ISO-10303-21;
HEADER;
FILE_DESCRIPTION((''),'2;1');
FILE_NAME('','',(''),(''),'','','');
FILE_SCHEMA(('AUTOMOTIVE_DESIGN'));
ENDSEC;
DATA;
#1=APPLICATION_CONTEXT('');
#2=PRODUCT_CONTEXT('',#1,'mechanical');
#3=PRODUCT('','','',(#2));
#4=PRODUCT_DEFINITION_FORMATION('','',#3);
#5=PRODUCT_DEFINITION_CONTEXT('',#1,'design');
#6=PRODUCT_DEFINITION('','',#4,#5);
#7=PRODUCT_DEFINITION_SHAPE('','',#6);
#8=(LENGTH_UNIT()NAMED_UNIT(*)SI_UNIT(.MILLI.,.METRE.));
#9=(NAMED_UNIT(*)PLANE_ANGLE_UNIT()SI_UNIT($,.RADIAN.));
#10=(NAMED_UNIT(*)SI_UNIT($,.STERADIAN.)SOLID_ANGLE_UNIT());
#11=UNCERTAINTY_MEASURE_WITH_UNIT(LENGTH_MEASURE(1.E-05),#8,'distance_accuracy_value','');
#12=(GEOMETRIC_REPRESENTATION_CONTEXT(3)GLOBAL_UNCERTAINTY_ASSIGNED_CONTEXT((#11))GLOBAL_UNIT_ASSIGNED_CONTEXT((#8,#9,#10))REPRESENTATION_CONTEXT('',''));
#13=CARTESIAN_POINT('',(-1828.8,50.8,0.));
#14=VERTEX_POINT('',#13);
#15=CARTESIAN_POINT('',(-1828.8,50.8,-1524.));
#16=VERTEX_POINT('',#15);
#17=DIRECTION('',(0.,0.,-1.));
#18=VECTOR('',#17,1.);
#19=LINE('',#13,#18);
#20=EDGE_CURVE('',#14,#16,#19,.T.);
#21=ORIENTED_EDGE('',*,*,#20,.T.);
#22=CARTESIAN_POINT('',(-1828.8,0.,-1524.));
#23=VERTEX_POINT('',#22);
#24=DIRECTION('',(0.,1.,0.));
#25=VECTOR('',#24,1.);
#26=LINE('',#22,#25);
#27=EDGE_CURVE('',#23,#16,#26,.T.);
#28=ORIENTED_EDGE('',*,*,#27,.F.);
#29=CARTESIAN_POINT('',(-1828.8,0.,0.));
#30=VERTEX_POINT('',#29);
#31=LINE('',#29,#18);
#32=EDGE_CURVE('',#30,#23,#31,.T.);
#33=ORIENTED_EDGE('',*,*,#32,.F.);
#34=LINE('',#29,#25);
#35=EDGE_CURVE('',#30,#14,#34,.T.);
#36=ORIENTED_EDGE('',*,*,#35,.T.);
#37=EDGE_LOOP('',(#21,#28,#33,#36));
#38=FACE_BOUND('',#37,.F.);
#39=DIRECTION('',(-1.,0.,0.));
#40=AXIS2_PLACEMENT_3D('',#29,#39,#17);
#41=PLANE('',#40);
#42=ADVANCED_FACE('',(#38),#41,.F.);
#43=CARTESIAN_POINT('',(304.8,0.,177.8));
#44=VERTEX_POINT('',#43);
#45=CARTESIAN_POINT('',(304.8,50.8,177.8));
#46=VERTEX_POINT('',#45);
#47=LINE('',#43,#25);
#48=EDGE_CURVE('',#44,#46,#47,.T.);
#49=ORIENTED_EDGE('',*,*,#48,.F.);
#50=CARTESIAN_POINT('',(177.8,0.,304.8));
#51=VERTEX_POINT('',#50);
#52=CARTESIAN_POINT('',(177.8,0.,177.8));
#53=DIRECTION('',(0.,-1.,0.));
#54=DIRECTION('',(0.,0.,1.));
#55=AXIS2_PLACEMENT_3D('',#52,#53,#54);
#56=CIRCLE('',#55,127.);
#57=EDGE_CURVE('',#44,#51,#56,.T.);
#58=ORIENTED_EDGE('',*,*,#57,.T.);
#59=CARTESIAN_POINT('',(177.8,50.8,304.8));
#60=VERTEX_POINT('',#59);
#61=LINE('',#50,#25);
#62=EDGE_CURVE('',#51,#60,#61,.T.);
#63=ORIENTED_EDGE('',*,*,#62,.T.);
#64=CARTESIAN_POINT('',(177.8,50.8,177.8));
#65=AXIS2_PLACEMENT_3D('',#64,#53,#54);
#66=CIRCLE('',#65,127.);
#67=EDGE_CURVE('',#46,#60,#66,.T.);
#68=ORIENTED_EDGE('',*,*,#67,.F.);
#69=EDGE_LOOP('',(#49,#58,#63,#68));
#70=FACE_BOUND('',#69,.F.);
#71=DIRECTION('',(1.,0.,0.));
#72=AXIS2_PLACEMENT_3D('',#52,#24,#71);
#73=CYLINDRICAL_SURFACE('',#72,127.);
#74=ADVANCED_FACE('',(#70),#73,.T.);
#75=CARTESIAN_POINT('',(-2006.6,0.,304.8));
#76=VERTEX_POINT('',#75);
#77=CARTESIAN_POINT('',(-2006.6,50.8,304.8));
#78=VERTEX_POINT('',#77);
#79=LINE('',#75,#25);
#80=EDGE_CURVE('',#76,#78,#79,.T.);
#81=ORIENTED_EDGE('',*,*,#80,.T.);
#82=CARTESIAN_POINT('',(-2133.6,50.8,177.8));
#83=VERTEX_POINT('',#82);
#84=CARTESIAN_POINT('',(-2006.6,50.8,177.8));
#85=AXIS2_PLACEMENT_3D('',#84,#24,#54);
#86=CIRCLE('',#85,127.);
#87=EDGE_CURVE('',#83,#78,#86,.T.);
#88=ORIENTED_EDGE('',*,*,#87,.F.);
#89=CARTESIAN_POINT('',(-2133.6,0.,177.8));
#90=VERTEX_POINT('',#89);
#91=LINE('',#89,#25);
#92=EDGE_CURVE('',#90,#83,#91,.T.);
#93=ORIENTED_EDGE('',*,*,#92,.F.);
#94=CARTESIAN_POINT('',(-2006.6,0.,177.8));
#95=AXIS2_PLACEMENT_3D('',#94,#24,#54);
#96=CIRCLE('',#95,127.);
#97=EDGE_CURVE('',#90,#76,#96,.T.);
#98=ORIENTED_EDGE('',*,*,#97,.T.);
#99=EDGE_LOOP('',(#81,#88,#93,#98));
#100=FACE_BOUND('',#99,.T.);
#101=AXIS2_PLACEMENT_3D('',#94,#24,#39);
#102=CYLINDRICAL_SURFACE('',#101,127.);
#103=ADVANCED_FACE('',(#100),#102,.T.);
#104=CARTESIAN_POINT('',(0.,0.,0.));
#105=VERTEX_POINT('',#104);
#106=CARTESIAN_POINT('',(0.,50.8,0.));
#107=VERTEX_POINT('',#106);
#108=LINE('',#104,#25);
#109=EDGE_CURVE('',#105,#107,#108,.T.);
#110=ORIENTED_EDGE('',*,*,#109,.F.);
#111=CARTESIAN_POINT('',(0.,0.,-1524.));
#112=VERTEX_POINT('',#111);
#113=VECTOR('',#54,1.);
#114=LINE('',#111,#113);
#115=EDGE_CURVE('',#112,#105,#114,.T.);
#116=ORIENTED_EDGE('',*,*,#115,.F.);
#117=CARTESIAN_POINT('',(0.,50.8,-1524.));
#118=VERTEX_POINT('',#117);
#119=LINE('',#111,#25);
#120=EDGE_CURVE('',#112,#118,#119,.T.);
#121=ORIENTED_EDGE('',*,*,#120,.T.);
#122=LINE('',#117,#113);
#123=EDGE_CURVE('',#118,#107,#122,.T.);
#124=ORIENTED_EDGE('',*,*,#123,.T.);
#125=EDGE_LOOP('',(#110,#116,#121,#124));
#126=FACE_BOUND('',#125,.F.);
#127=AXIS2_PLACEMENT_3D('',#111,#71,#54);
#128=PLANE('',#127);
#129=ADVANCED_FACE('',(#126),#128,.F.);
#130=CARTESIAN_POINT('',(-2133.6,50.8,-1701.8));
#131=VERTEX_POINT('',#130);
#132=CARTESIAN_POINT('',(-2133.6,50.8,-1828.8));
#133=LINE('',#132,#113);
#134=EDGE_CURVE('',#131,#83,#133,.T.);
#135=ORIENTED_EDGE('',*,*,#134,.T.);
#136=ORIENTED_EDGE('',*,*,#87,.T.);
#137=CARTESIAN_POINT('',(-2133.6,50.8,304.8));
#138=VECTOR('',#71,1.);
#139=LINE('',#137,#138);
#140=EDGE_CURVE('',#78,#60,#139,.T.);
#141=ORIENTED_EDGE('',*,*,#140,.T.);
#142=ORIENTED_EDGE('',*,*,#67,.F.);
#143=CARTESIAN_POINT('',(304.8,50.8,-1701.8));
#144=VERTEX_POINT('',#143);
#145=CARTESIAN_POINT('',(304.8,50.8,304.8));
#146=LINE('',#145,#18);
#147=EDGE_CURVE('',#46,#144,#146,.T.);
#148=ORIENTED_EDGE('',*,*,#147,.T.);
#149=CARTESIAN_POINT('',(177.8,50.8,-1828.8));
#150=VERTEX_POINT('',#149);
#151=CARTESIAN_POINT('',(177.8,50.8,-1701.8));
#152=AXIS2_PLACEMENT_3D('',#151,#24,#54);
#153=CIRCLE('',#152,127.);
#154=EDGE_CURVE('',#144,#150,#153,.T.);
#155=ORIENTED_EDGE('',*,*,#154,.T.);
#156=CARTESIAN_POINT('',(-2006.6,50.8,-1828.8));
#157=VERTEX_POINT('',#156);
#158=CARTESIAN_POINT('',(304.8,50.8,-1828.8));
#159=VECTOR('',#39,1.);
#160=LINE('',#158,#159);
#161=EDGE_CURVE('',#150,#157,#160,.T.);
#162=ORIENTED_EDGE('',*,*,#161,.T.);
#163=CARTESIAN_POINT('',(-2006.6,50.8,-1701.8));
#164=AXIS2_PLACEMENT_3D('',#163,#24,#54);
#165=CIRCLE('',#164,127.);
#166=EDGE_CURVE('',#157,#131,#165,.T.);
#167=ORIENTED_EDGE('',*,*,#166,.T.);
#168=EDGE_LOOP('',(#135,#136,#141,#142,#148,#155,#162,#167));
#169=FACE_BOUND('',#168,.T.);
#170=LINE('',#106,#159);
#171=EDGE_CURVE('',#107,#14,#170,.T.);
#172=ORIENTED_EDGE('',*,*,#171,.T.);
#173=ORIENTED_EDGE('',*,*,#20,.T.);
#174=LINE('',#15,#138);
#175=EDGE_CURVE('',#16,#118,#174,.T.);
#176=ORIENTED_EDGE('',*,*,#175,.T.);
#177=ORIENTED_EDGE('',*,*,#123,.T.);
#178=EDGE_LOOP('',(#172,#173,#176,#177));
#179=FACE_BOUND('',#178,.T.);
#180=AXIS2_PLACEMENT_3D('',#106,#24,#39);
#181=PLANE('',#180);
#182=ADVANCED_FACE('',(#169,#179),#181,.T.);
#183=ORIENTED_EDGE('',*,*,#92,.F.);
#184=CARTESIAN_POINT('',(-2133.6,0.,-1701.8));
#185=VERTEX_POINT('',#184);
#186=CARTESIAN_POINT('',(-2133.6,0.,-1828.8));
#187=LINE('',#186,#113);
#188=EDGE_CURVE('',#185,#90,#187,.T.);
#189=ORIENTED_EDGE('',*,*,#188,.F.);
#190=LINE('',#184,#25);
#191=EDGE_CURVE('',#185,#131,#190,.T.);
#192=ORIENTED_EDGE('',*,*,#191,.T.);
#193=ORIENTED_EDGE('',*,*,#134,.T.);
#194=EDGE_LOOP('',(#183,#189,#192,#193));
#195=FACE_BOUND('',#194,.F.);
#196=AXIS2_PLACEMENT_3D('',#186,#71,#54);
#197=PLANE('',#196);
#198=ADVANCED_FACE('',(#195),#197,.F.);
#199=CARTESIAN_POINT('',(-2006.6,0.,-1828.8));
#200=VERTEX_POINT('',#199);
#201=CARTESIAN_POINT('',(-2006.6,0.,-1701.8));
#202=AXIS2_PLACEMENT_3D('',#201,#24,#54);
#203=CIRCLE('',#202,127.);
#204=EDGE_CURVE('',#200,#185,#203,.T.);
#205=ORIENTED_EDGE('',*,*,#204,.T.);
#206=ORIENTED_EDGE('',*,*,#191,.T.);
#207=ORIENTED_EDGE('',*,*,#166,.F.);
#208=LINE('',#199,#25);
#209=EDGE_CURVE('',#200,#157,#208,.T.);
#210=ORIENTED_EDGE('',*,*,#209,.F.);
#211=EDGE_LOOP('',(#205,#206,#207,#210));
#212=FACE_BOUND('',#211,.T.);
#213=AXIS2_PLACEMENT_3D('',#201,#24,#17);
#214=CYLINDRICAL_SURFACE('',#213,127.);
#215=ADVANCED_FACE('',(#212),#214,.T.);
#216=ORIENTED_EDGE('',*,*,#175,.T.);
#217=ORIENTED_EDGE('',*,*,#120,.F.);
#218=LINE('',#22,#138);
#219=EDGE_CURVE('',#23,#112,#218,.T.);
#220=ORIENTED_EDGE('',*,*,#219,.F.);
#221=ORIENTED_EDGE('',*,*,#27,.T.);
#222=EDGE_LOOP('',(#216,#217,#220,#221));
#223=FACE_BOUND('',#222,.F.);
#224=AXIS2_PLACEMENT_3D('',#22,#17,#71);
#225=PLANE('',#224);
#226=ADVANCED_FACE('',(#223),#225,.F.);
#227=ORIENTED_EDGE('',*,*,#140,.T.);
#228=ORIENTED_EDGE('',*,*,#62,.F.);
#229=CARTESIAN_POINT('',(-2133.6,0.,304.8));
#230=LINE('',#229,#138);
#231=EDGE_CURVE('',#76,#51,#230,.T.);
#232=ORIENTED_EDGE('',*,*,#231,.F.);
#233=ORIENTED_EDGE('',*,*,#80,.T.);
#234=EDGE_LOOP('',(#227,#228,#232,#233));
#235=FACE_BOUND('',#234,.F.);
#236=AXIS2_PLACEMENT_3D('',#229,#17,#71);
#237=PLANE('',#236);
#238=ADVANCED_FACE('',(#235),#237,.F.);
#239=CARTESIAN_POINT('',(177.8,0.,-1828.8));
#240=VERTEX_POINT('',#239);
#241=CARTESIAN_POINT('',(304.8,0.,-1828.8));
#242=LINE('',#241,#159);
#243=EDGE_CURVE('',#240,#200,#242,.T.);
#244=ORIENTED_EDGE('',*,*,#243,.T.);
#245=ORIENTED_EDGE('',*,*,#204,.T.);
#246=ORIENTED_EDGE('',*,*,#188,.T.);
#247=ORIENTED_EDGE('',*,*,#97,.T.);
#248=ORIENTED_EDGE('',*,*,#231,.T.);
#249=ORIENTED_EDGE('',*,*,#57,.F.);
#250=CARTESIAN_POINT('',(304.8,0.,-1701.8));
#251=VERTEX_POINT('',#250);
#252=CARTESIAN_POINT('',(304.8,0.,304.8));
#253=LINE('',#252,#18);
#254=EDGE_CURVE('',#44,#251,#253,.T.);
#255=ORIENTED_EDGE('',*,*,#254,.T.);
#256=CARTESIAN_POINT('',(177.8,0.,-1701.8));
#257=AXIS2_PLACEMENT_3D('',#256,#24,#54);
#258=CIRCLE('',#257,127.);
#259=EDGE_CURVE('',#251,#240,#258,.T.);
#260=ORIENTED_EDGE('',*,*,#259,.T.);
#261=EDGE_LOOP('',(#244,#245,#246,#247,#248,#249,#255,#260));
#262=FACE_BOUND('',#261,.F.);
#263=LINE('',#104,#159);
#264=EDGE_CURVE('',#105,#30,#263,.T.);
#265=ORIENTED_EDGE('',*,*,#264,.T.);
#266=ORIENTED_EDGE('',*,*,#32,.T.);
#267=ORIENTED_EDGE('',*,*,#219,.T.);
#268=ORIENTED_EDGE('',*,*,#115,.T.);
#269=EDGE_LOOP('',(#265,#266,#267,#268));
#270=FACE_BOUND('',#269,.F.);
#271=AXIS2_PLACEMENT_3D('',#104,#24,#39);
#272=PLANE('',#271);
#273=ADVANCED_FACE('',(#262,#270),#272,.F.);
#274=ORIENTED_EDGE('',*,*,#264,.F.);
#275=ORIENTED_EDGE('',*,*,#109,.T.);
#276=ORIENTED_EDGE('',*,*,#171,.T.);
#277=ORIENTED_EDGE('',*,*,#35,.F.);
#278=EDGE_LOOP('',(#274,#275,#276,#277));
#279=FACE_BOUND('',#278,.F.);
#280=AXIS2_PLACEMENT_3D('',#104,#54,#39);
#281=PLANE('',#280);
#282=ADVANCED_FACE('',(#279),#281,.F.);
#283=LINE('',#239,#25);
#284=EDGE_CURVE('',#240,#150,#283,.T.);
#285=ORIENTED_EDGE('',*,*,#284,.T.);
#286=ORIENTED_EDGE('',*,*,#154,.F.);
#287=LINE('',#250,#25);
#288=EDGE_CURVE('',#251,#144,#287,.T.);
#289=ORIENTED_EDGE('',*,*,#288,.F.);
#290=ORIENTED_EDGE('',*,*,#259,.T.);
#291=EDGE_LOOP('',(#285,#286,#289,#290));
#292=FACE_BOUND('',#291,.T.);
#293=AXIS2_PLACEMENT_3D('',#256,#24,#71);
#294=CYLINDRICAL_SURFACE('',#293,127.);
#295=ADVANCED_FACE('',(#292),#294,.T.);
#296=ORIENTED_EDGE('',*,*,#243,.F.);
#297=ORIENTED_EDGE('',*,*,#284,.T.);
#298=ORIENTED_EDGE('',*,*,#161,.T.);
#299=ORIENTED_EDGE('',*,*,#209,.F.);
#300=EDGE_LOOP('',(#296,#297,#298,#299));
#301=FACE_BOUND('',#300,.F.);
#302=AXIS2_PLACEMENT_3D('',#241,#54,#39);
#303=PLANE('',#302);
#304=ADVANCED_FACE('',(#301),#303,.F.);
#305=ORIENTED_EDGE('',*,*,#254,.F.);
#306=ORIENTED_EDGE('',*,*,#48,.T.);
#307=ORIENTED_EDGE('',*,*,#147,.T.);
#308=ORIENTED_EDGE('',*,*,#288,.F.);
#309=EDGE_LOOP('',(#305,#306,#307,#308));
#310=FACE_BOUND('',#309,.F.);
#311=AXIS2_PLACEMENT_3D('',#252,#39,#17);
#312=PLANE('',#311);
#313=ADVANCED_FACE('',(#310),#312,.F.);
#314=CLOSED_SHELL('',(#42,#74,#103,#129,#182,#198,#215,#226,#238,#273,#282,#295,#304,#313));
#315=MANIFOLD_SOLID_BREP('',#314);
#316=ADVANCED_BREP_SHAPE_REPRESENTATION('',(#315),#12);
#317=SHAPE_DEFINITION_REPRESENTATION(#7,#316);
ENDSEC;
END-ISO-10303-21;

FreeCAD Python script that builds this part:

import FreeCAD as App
import Part
import Sketcher
Q = App.Units.Quantity


def edges_at(feature, points):
    """Names of the edges that pass closest to the given points."""
    edges = feature.Shape.Edges
    near = lambda p: min(range(len(edges)), key=lambda i: edges[i].distToShape(Part.Vertex(*p))[0])
    return sorted({f"Edge{near(p) + 1}" for p in points})

doc = App.newDocument("Part")
body = doc.addObject("PartDesign::Body", "Body")

# Sketch on XZ plane
sketch1 = body.newObject("Sketcher::SketchObject", "Sketch")
sketch1.AttachmentSupport = (doc.getObject("XZ_Plane"), [""])
sketch1.MapMode = "FlatFace"
sketch1.addGeometry(Part.LineSegment(App.Vector(-2134, -1829, 0), App.Vector(-2134, 305, 0)), False)
sketch1.addGeometry(Part.LineSegment(App.Vector(-2134, 305, 0), App.Vector(305, 305, 0)), False)
sketch1.addGeometry(Part.LineSegment(App.Vector(305, 305, 0), App.Vector(305, -1829, 0)), False)
sketch1.addGeometry(Part.LineSegment(App.Vector(305, -1829, 0), App.Vector(-2134, -1829, 0)), False)
sketch1.addGeometry(Part.LineSegment(App.Vector(0, -1524, 0), App.Vector(0, 0, 0)), False)
sketch1.addGeometry(Part.LineSegment(App.Vector(0, 0, 0), App.Vector(-1829, 0, 0)), False)
sketch1.addGeometry(Part.LineSegment(App.Vector(-1829, 0, 0), App.Vector(-1829, -1524, 0)), False)
sketch1.addGeometry(Part.LineSegment(App.Vector(-1829, -1524, 0), App.Vector(0, -1524, 0)), False)
sketch1.addConstraint(Sketcher.Constraint("Coincident", 0, 2, 1, 1))
sketch1.addConstraint(Sketcher.Constraint("Coincident", 1, 2, 2, 1))
sketch1.addConstraint(Sketcher.Constraint("Coincident", 2, 2, 3, 1))
sketch1.addConstraint(Sketcher.Constraint("Coincident", 3, 2, 0, 1))
sketch1.addConstraint(Sketcher.Constraint("Coincident", 4, 2, 5, 1))
sketch1.addConstraint(Sketcher.Constraint("Coincident", 5, 2, 6, 1))
sketch1.addConstraint(Sketcher.Constraint("Coincident", 6, 2, 7, 1))
sketch1.addConstraint(Sketcher.Constraint("Coincident", 7, 2, 4, 1))
sketch1.addConstraint(Sketcher.Constraint("Vertical", 0))
sketch1.addConstraint(Sketcher.Constraint("Horizontal", 1))
sketch1.addConstraint(Sketcher.Constraint("Vertical", 2))
sketch1.addConstraint(Sketcher.Constraint("Horizontal", 3))
sketch1.addConstraint(Sketcher.Constraint("Vertical", 4))
sketch1.addConstraint(Sketcher.Constraint("Horizontal", 5))
sketch1.addConstraint(Sketcher.Constraint("Vertical", 6))
sketch1.addConstraint(Sketcher.Constraint("Horizontal", 7))
sketch1.addConstraint(Sketcher.Constraint("Coincident", 4, 2, -1, 1))
sketch1.addConstraint(Sketcher.Constraint("DistanceX", 5, 2, 5, 1, Q("72 in")))
sketch1.addConstraint(Sketcher.Constraint("DistanceY", 4, 1, 4, 2, Q("60 in")))
sketch1.addConstraint(Sketcher.Constraint("DistanceY", -1, 1, 0, 2, Q("12 in")))
sketch1.addConstraint(Sketcher.Constraint("DistanceX", -1, 1, 1, 2, Q("12 in")))
sketch1.addConstraint(Sketcher.Constraint("DistanceY", 2, 2, -1, 1, Q("72 in")))
sketch1.addConstraint(Sketcher.Constraint("DistanceX", 0, 2, 5, 2, Q("12 in")))
pad1 = body.newObject("PartDesign::Pad", "Pad")
pad1.Profile = sketch1
pad1.Length = Q("2 in")
pad1.Reversed = True
doc.recompute()

fillet = body.newObject("PartDesign::Fillet", "Fillet")
fillet.Base = (pad1, edges_at(pad1, [(304.8, 25.4, 304.8)]))
fillet.Radius = Q("5 in")
doc.recompute()

fillet2 = body.newObject("PartDesign::Fillet", "Fillet001")
fillet2.Base = (fillet, edges_at(fillet, [(304.8, 25.4, -1828.8)]))
fillet2.Radius = Q("5 in")
doc.recompute()

fillet3 = body.newObject("PartDesign::Fillet", "Fillet002")
fillet3.Base = (fillet2, edges_at(fillet2, [(-2133.6, 25.4, -1828.8)]))
fillet3.Radius = Q("5 in")
doc.recompute()

fillet4 = body.newObject("PartDesign::Fillet", "Fillet003")
fillet4.Base = (fillet3, edges_at(fillet3, [(-2133.6, 25.4, 304.8)]))
fillet4.Radius = Q("5 in")

doc.recompute()
